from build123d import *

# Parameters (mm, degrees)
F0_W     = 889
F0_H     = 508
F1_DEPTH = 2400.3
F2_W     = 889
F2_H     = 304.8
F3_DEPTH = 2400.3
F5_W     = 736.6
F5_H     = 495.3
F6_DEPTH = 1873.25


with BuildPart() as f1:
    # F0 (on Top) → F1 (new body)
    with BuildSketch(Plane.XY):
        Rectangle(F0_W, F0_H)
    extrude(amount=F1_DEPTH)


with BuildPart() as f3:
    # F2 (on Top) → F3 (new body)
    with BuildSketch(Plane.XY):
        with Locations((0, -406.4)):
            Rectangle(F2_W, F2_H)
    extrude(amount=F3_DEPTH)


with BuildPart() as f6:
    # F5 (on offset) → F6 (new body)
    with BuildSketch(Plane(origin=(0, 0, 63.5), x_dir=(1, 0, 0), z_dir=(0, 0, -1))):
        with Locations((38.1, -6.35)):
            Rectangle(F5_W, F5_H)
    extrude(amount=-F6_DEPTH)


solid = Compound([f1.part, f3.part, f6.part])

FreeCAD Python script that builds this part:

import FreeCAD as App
import Part
import Sketcher
Q = App.Units.Quantity

doc = App.newDocument("Part")
body = doc.addObject("PartDesign::Body", "Body")

sketch1 = body.newObject("Sketcher::SketchObject", "Sketch")
sketch1.AttachmentSupport = (doc.getObject("XY_Plane"), [""])
sketch1.MapMode = "FlatFace"
sketch1.addGeometry(Part.LineSegment(App.Vector(-444.5, 254, 0), App.Vector(-444.5, -254, 0)), False)
sketch1.addGeometry(Part.LineSegment(App.Vector(-444.5, -254, 0), App.Vector(444.5, -254, 0)), False)
sketch1.addGeometry(Part.LineSegment(App.Vector(444.5, -254, 0), App.Vector(444.5, 254, 0)), False)
sketch1.addGeometry(Part.LineSegment(App.Vector(444.5, 254, 0), App.Vector(-444.5, 254, 0)), False)
sketch1.addConstraint(Sketcher.Constraint("Coincident", 0, 2, 1, 1))
sketch1.addConstraint(Sketcher.Constraint("Coincident", 1, 2, 2, 1))
sketch1.addConstraint(Sketcher.Constraint("Coincident", 2, 2, 3, 1))
sketch1.addConstraint(Sketcher.Constraint("Coincident", 3, 2, 0, 1))
sketch1.addConstraint(Sketcher.Constraint("Vertical", 0))
sketch1.addConstraint(Sketcher.Constraint("Horizontal", 1))
sketch1.addConstraint(Sketcher.Constraint("Vertical", 2))
sketch1.addConstraint(Sketcher.Constraint("Horizontal", 3))
sketch1.addConstraint(Sketcher.Constraint("Symmetric", 0, 2, 2, 2, -1, 1))
sketch1.addConstraint(Sketcher.Constraint("DistanceX", 1, 1, 1, 2, Q("35 in")))
sketch1.addConstraint(Sketcher.Constraint("DistanceY", 0, 2, 0, 1, Q("20 in")))
pad1 = body.newObject("PartDesign::Pad", "Pad")
pad1.Profile = sketch1
pad1.Length = Q("94.5 in")
body2 = doc.addObject("PartDesign::Body", "Body001")

sketch2 = body2.newObject("Sketcher::SketchObject", "Sketch001")
sketch2.AttachmentSupport = (doc.getObject("XY_Plane001"), [""])
sketch2.MapMode = "FlatFace"
sketch2.addGeometry(Part.LineSegment(App.Vector(-444.5, -254, 0), App.Vector(-444.5, -558.8, 0)), False)
sketch2.addGeometry(Part.LineSegment(App.Vector(-444.5, -558.8, 0), App.Vector(444.5, -558.8, 0)), False)
sketch2.addGeometry(Part.LineSegment(App.Vector(444.5, -558.8, 0), App.Vector(444.5, -254, 0)), False)
sketch2.addGeometry(Part.LineSegment(App.Vector(444.5, -254, 0), App.Vector(-444.5, -254, 0)), False)
sketch2.addConstraint(Sketcher.Constraint("Coincident", 0, 2, 1, 1))
sketch2.addConstraint(Sketcher.Constraint("Coincident", 1, 2, 2, 1))
sketch2.addConstraint(Sketcher.Constraint("Coincident", 2, 2, 3, 1))
sketch2.addConstraint(Sketcher.Constraint("Coincident", 3, 2, 0, 1))
sketch2.addConstraint(Sketcher.Constraint("Vertical", 0))
sketch2.addConstraint(Sketcher.Constraint("Horizontal", 1))
sketch2.addConstraint(Sketcher.Constraint("Vertical", 2))
sketch2.addConstraint(Sketcher.Constraint("Horizontal", 3))
sketch2.addConstraint(Sketcher.Constraint("DistanceX", 1, 1, 1, 2, Q("35 in")))
sketch2.addConstraint(Sketcher.Constraint("DistanceY", 0, 2, 0, 1, Q("12 in")))
sketch2.addConstraint(Sketcher.Constraint("DistanceY", 0, 2, -1, 1, Q("22 in")))
sketch2.addConstraint(Sketcher.Constraint("DistanceX", 0, 2, -1, 1, Q("17.5 in")))
pad2 = body2.newObject("PartDesign::Pad", "Pad001")
pad2.Profile = sketch2
pad2.Length = Q("94.5 in")
body3 = doc.addObject("PartDesign::Body", "Body002")

sketch3 = body3.newObject("Sketcher::SketchObject", "Sketch002")
sketch3.AttachmentSupport = (doc.getObject("XY_Plane002"), [""])
sketch3.MapMode = "FlatFace"
sketch3.AttachmentOffset = App.Placement(App.Vector(0, 0, 2.5 * 25.4), App.Rotation())
sketch3.addGeometry(Part.LineSegment(App.Vector(-330.2, -241.3, 0), App.Vector(-330.2, 254, 0)), False)
sketch3.addGeometry(Part.LineSegment(App.Vector(-330.2, 254, 0), App.Vector(406.4, 254, 0)), False)
sketch3.addGeometry(Part.LineSegment(App.Vector(406.4, 254, 0), App.Vector(406.4, -241.3, 0)), False)
sketch3.addGeometry(Part.LineSegment(App.Vector(406.4, -241.3, 0), App.Vector(-330.2, -241.3, 0)), False)
sketch3.addConstraint(Sketcher.Constraint("Coincident", 0, 2, 1, 1))
sketch3.addConstraint(Sketcher.Constraint("Coincident", 1, 2, 2, 1))
sketch3.addConstraint(Sketcher.Constraint("Coincident", 2, 2, 3, 1))
sketch3.addConstraint(Sketcher.Constraint("Coincident", 3, 2, 0, 1))
sketch3.addConstraint(Sketcher.Constraint("Vertical", 0))
sketch3.addConstraint(Sketcher.Constraint("Horizontal", 1))
sketch3.addConstraint(Sketcher.Constraint("Vertical", 2))
sketch3.addConstraint(Sketcher.Constraint("Horizontal", 3))
sketch3.addConstraint(Sketcher.Constraint("DistanceX", 1, 1, 1, 2, Q("29 in")))
sketch3.addConstraint(Sketcher.Constraint("DistanceY", 0, 1, 0, 2, Q("19.5 in")))
sketch3.addConstraint(Sketcher.Constraint("DistanceX", 0, 2, -1, 1, Q("13 in")))
sketch3.addConstraint(Sketcher.Constraint("DistanceY", -1, 1, 0, 2, Q("10 in")))
pad3 = body3.newObject("PartDesign::Pad", "Pad002")
pad3.Profile = sketch3
pad3.Length = Q("73.75 in")

doc.recompute()
